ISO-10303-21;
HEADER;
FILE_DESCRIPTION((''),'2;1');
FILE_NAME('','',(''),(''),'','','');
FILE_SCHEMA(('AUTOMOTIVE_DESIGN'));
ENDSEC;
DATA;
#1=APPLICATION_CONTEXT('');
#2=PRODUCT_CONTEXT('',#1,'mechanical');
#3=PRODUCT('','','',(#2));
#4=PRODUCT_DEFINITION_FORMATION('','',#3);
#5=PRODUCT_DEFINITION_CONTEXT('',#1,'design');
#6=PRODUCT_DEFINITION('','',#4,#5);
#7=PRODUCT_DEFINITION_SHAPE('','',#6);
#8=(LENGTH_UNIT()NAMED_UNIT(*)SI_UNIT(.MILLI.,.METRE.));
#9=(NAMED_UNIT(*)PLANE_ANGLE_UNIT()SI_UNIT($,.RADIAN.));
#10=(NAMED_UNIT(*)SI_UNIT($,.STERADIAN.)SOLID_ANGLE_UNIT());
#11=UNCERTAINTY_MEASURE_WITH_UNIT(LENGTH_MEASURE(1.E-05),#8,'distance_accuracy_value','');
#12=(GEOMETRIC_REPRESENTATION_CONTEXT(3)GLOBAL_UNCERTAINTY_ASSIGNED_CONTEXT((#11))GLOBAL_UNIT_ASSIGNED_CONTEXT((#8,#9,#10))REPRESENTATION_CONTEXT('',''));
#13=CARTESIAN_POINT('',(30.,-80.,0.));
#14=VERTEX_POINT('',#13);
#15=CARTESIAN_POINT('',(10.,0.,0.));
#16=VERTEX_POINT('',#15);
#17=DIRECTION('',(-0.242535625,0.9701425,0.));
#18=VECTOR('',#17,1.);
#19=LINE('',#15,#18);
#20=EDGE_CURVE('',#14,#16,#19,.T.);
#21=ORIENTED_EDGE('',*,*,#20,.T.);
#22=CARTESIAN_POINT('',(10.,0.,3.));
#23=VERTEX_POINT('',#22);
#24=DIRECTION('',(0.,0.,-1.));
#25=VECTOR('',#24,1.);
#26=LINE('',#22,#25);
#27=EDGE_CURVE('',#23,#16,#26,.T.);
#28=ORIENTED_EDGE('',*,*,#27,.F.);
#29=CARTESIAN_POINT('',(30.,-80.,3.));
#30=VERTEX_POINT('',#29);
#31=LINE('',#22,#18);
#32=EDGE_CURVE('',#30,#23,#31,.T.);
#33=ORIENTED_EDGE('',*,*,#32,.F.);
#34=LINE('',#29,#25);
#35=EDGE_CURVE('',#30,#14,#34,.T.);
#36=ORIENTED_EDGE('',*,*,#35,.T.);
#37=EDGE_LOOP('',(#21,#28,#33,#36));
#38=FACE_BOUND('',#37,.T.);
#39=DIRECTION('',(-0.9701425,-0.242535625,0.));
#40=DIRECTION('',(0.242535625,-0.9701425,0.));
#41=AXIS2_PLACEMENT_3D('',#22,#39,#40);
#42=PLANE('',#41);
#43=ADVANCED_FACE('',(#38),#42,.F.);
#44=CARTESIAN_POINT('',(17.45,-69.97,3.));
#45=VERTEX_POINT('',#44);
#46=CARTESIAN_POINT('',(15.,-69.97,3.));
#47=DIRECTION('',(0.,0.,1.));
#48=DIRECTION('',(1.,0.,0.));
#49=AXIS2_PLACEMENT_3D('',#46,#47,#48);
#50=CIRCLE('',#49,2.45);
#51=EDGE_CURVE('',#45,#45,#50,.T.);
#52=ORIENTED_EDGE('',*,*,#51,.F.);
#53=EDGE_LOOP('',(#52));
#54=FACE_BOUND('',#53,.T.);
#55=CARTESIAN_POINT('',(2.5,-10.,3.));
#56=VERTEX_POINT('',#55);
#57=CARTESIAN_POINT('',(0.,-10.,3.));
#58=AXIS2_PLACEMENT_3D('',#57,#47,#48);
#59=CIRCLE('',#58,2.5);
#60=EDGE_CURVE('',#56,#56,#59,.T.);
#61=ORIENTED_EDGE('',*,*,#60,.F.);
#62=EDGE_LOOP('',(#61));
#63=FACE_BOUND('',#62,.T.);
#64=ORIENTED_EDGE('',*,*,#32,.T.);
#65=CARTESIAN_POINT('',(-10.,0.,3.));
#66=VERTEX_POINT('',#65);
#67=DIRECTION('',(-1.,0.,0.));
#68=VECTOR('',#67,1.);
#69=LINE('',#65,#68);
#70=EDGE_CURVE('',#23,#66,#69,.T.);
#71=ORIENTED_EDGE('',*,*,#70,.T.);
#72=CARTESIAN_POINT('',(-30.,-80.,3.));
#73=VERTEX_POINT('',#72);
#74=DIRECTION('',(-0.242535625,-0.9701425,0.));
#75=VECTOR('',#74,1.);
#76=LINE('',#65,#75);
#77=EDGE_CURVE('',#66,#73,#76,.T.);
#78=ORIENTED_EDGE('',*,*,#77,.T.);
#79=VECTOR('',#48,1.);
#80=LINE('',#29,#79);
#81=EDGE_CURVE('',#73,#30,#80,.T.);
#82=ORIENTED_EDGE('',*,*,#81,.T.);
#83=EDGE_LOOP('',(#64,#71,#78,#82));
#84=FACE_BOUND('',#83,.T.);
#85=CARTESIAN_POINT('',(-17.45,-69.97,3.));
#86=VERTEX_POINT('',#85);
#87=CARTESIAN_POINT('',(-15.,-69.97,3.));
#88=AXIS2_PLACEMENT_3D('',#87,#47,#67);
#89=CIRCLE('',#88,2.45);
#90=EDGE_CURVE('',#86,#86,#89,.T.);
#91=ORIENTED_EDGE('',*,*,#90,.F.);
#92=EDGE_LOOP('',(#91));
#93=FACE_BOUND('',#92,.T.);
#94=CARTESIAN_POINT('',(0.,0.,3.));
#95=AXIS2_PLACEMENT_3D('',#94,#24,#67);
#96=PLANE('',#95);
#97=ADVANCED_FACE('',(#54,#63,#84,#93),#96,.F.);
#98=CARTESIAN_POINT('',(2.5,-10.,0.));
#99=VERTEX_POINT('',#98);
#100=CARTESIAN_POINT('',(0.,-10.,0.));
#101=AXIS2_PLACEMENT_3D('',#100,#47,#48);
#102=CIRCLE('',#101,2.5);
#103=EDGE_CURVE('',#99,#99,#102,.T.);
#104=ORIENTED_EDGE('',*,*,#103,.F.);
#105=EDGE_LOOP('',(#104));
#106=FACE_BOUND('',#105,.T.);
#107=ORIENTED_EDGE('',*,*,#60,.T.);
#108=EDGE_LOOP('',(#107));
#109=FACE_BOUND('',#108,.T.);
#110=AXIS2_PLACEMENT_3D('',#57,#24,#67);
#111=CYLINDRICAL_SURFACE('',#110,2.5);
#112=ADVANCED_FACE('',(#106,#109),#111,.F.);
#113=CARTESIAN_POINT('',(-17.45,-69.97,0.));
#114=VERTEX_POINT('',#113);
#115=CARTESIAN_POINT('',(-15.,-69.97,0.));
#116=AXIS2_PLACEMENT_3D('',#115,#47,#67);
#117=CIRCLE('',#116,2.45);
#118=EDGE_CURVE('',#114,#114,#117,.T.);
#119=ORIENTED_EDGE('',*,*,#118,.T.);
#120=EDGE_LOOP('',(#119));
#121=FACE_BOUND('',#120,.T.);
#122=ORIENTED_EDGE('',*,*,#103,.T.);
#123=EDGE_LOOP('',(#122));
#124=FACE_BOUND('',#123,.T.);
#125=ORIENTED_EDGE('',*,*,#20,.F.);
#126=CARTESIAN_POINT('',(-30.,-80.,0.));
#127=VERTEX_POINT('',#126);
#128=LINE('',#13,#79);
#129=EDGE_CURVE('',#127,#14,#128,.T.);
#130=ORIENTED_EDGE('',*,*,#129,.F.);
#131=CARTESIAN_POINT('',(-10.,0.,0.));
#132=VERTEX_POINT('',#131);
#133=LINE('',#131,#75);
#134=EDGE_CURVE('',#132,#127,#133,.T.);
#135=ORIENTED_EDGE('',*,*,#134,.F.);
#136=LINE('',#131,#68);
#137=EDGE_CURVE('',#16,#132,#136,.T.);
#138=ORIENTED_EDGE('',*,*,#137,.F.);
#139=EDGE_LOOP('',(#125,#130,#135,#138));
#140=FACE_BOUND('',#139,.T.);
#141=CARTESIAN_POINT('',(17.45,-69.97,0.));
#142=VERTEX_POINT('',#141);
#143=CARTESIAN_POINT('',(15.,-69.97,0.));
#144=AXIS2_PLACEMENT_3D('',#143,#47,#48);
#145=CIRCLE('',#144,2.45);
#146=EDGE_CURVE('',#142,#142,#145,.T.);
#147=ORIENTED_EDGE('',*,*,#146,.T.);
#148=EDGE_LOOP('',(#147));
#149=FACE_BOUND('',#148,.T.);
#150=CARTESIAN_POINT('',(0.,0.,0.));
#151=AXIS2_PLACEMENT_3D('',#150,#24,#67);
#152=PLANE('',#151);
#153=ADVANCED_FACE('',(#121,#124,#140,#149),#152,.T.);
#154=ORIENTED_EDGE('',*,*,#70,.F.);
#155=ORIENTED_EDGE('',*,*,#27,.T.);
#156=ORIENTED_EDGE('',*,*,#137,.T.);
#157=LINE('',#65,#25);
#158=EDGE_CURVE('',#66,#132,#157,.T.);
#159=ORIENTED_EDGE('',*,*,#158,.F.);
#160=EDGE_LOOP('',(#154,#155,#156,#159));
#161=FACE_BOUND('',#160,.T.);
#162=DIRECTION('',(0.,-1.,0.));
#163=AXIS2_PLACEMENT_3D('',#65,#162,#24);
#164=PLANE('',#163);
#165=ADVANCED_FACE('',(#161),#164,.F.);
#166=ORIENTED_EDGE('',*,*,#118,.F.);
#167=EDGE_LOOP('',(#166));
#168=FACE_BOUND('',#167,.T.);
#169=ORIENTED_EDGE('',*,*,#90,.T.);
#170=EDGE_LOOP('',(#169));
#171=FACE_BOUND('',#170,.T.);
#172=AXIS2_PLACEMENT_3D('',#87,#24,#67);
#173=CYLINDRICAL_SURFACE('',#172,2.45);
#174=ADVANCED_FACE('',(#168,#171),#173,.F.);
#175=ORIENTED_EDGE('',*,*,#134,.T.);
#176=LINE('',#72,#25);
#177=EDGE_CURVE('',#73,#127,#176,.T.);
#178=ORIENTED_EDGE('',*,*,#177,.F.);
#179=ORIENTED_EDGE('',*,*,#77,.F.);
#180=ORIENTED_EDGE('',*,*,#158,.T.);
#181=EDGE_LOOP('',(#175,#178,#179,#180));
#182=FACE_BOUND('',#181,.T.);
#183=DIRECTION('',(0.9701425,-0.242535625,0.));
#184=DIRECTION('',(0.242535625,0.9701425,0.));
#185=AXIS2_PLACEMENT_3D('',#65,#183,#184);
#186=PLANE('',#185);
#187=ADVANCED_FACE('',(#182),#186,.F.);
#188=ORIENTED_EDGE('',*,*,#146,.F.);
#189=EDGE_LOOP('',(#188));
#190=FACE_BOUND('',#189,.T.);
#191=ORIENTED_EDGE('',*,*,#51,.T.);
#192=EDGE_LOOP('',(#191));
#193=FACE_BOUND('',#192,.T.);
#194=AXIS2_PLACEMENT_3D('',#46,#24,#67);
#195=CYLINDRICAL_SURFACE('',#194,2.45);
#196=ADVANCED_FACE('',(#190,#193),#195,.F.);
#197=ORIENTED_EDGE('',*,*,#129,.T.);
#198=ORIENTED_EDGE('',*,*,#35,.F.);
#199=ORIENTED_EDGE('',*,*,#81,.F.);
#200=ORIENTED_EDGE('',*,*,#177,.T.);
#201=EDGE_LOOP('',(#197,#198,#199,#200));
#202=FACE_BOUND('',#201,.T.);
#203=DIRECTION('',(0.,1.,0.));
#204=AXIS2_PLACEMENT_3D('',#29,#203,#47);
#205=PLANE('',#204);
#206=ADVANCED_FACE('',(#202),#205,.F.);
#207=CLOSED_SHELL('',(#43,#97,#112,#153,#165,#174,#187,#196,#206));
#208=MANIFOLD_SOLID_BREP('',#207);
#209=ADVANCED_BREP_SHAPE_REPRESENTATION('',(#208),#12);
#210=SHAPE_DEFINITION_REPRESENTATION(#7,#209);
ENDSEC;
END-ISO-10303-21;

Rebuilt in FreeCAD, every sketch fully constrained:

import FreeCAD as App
import Part
import Sketcher

V = App.Vector
Q = App.Units.Quantity


def add_polygon(sketch, points):
    """Adds a closed chain of lines whose ends are joined by coincident constraints."""
    first, n = sketch.GeometryCount, len(points)
    for a, b in zip(points, points[1:] + points[:1]):
        sketch.addGeometry(Part.LineSegment(App.Vector(*a, 0), App.Vector(*b, 0)), False)
    for i in range(n):
        sketch.addConstraint(Sketcher.Constraint("Coincident", first + i, 2, first + (i + 1) % n, 1))

doc = App.newDocument("Part")
body = doc.addObject("PartDesign::Body", "Body")

# Sketch on XY plane
sketch1 = body.newObject("Sketcher::SketchObject", "Sketch")
sketch1.AttachmentSupport = (doc.getObject("XY_Plane"), [""])
sketch1.MapMode = "FlatFace"
add_polygon(sketch1, [(10, 0), (-10, 0), (-30, -80), (30, -80)])  # lines 0-3
sketch1.addGeometry(Part.Circle(V(15, -69.97, 0), V(0, 0, 1), 2.45), False)  # 4
sketch1.addGeometry(Part.Circle(V(-15, -69.97, 0), V(0, 0, 1), 2.45), False)  # 5
sketch1.addGeometry(Part.Circle(V(0, -10, 0), V(0, 0, 1), 2.5), False)  # 6
sketch1.addConstraint(Sketcher.Constraint("Horizontal", 0))
sketch1.addConstraint(Sketcher.Constraint("Horizontal", 2))
sketch1.addConstraint(Sketcher.Constraint("Equal", 4, 5))
sketch1.addConstraint(Sketcher.Constraint("Symmetric", 0, 2, 3, 2, -1, 1))
sketch1.addConstraint(Sketcher.Constraint("Symmetric", 4, 3, 5, 3, -2))
sketch1.addConstraint(Sketcher.Constraint("PointOnObject", 6, 3, -2))
sketch1.addConstraint(Sketcher.Constraint("Equal", 1, 3))
sketch1.addConstraint(Sketcher.Constraint("Diameter", 6, Q("5 mm")))
sketch1.addConstraint(Sketcher.Constraint("Diameter", 4, Q("4.9 mm")))
sketch1.addConstraint(Sketcher.Constraint("DistanceX", 0, 2, 0, 1, Q("20 mm")))
sketch1.addConstraint(Sketcher.Constraint("DistanceX", 2, 1, 2, 2, Q("60 mm")))
sketch1.addConstraint(Sketcher.Constraint("DistanceX", -1, 1, 4, 3, Q("15 mm")))
sketch1.addConstraint(Sketcher.Constraint("DistanceY", 6, 3, -1, 1, Q("10 mm")))
sketch1.addConstraint(Sketcher.Constraint("DistanceY", 1, 2, -1, 1, Q("80 mm")))
sketch1.addConstraint(Sketcher.Constraint("DistanceY", 4, 3, -1, 1, Q("69.97 mm")))
pad1 = body.newObject("PartDesign::Pad", "Pad")
pad1.Profile = sketch1
pad1.Length = 3

doc.recompute()
